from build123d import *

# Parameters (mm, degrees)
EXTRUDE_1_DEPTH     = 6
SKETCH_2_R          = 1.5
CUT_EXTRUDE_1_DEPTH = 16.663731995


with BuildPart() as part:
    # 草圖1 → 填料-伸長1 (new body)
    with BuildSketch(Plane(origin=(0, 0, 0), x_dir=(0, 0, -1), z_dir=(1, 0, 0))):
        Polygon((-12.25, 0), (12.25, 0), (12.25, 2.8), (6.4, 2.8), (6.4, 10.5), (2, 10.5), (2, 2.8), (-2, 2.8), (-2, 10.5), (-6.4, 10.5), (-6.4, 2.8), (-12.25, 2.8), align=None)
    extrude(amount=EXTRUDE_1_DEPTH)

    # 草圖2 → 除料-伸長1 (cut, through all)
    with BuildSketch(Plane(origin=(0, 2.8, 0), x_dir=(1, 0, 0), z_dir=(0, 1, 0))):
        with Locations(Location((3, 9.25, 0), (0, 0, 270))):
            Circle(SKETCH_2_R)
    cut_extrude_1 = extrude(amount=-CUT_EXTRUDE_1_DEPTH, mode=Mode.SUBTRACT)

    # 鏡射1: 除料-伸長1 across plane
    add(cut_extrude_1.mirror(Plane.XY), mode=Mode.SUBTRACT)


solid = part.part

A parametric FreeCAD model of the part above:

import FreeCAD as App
import Part
import Sketcher
from FreeCAD import Vector
Q = App.Units.Quantity

doc = App.newDocument("Part")
body = doc.addObject("PartDesign::Body", "Body")

# Sketch on YZ plane
sketch1 = body.newObject("Sketcher::SketchObject", "Sketch")
sketch1.AttachmentSupport = (doc.getObject("YZ_Plane"), [""])
sketch1.MapMode = "FlatFace"
sketch1.addGeometry([
    Part.LineSegment(Vector(0, 12.2, 0), Vector(0, -12.2, 0)),  # 0
    Part.LineSegment(Vector(0, -12.2, 0), Vector(2.8, -12.2, 0)),  # 1
    Part.LineSegment(Vector(2.8, -12.2, 0), Vector(2.8, -6.4, 0)),  # 2
    Part.LineSegment(Vector(2.8, -6.4, 0), Vector(10.5, -6.4, 0)),  # 3
    Part.LineSegment(Vector(10.5, -6.4, 0), Vector(10.5, -2, 0)),  # 4
    Part.LineSegment(Vector(10.5, -2, 0), Vector(2.8, -2, 0)),  # 5
    Part.LineSegment(Vector(2.8, -2, 0), Vector(2.8, 2, 0)),  # 6
    Part.LineSegment(Vector(2.8, 2, 0), Vector(10.5, 2, 0)),  # 7
    Part.LineSegment(Vector(10.5, 2, 0), Vector(10.5, 6.4, 0)),  # 8
    Part.LineSegment(Vector(10.5, 6.4, 0), Vector(2.8, 6.4, 0)),  # 9
    Part.LineSegment(Vector(2.8, 6.4, 0), Vector(2.8, 12.2, 0)),  # 10
    Part.LineSegment(Vector(2.8, 12.2, 0), Vector(0, 12.2, 0)),  # 11
], False)
sketch1.addConstraint([
    Sketcher.Constraint("Coincident", 0, 2, 1, 1),
    Sketcher.Constraint("Coincident", 1, 2, 2, 1),
    Sketcher.Constraint("Coincident", 2, 2, 3, 1),
    Sketcher.Constraint("Coincident", 3, 2, 4, 1),
    Sketcher.Constraint("Coincident", 4, 2, 5, 1),
    Sketcher.Constraint("Coincident", 5, 2, 6, 1),
    Sketcher.Constraint("Coincident", 6, 2, 7, 1),
    Sketcher.Constraint("Coincident", 7, 2, 8, 1),
    Sketcher.Constraint("Coincident", 8, 2, 9, 1),
    Sketcher.Constraint("Coincident", 9, 2, 10, 1),
    Sketcher.Constraint("Coincident", 10, 2, 11, 1),
    Sketcher.Constraint("Coincident", 11, 2, 0, 1),
    Sketcher.Constraint("Vertical", 0),
    Sketcher.Constraint("Horizontal", 1),
    Sketcher.Constraint("Vertical", 2),
    Sketcher.Constraint("Horizontal", 3),
    Sketcher.Constraint("Vertical", 4),
    Sketcher.Constraint("Horizontal", 5),
    Sketcher.Constraint("Vertical", 6),
    Sketcher.Constraint("Horizontal", 7),
    Sketcher.Constraint("Vertical", 8),
    Sketcher.Constraint("Horizontal", 9),
    Sketcher.Constraint("Vertical", 10),
    Sketcher.Constraint("Horizontal", 11),
    Sketcher.Constraint("Symmetric", 0, 2, 11, 2, -1, 1),
    Sketcher.Constraint("Symmetric", 4, 2, 7, 2, -1),
    Sketcher.Constraint("Symmetric", 2, 2, 9, 2, -1),
    Sketcher.Constraint("Vertical", 2, 2, 5, 2),
    Sketcher.Constraint("DistanceY", 6, 1, 6, 2, Q("4 mm")),
    Sketcher.Constraint("DistanceX", 1, 1, 1, 2, Q("2.8 mm")),
    Sketcher.Constraint("DistanceX", 3, 1, 3, 2, Q("7.7 mm")),
    Sketcher.Constraint("DistanceY", 0, 2, 0, 1, Q("24.5 mm")),
    Sketcher.Constraint("DistanceY", 4, 1, 4, 2, Q("4.4 mm")),
])
pad1 = body.newObject("PartDesign::Pad", "Pad")
pad1.Profile = sketch1
pad1.Length = 6

# Sketch on XZ plane
sketch2 = body.newObject("Sketcher::SketchObject", "Sketch001")
sketch2.AttachmentSupport = (doc.getObject("XZ_Plane"), [""])
sketch2.MapMode = "FlatFace"
sketch2.AttachmentOffset = App.Placement(Vector(0, 0, -2.8), App.Rotation())
sketch2.addGeometry(Part.Circle(Vector(3, -9.2, 0), Vector(0, 0, 1), 1.5), False)
sketch2.addConstraint([
    Sketcher.Constraint("Diameter", 0, Q("3 mm")),
    Sketcher.Constraint("DistanceX", -1, 1, 0, 3, Q("3 mm")),
    Sketcher.Constraint("DistanceY", 0, 3, -1, 1, Q("9.25 mm")),
])
pocket1 = body.newObject("PartDesign::Pocket", "Pocket")
pocket1.Profile = sketch2
pocket1.Type = "ThroughAll"
pocket1.Reversed = True
doc.recompute()

mirrored = body.newObject("PartDesign::Mirrored", "Mirrored")
mirrored.Originals = [pocket1]
mirrored.MirrorPlane = (doc.getObject("XY_Plane"), [""])
body.Tip = mirrored

doc.recompute()
